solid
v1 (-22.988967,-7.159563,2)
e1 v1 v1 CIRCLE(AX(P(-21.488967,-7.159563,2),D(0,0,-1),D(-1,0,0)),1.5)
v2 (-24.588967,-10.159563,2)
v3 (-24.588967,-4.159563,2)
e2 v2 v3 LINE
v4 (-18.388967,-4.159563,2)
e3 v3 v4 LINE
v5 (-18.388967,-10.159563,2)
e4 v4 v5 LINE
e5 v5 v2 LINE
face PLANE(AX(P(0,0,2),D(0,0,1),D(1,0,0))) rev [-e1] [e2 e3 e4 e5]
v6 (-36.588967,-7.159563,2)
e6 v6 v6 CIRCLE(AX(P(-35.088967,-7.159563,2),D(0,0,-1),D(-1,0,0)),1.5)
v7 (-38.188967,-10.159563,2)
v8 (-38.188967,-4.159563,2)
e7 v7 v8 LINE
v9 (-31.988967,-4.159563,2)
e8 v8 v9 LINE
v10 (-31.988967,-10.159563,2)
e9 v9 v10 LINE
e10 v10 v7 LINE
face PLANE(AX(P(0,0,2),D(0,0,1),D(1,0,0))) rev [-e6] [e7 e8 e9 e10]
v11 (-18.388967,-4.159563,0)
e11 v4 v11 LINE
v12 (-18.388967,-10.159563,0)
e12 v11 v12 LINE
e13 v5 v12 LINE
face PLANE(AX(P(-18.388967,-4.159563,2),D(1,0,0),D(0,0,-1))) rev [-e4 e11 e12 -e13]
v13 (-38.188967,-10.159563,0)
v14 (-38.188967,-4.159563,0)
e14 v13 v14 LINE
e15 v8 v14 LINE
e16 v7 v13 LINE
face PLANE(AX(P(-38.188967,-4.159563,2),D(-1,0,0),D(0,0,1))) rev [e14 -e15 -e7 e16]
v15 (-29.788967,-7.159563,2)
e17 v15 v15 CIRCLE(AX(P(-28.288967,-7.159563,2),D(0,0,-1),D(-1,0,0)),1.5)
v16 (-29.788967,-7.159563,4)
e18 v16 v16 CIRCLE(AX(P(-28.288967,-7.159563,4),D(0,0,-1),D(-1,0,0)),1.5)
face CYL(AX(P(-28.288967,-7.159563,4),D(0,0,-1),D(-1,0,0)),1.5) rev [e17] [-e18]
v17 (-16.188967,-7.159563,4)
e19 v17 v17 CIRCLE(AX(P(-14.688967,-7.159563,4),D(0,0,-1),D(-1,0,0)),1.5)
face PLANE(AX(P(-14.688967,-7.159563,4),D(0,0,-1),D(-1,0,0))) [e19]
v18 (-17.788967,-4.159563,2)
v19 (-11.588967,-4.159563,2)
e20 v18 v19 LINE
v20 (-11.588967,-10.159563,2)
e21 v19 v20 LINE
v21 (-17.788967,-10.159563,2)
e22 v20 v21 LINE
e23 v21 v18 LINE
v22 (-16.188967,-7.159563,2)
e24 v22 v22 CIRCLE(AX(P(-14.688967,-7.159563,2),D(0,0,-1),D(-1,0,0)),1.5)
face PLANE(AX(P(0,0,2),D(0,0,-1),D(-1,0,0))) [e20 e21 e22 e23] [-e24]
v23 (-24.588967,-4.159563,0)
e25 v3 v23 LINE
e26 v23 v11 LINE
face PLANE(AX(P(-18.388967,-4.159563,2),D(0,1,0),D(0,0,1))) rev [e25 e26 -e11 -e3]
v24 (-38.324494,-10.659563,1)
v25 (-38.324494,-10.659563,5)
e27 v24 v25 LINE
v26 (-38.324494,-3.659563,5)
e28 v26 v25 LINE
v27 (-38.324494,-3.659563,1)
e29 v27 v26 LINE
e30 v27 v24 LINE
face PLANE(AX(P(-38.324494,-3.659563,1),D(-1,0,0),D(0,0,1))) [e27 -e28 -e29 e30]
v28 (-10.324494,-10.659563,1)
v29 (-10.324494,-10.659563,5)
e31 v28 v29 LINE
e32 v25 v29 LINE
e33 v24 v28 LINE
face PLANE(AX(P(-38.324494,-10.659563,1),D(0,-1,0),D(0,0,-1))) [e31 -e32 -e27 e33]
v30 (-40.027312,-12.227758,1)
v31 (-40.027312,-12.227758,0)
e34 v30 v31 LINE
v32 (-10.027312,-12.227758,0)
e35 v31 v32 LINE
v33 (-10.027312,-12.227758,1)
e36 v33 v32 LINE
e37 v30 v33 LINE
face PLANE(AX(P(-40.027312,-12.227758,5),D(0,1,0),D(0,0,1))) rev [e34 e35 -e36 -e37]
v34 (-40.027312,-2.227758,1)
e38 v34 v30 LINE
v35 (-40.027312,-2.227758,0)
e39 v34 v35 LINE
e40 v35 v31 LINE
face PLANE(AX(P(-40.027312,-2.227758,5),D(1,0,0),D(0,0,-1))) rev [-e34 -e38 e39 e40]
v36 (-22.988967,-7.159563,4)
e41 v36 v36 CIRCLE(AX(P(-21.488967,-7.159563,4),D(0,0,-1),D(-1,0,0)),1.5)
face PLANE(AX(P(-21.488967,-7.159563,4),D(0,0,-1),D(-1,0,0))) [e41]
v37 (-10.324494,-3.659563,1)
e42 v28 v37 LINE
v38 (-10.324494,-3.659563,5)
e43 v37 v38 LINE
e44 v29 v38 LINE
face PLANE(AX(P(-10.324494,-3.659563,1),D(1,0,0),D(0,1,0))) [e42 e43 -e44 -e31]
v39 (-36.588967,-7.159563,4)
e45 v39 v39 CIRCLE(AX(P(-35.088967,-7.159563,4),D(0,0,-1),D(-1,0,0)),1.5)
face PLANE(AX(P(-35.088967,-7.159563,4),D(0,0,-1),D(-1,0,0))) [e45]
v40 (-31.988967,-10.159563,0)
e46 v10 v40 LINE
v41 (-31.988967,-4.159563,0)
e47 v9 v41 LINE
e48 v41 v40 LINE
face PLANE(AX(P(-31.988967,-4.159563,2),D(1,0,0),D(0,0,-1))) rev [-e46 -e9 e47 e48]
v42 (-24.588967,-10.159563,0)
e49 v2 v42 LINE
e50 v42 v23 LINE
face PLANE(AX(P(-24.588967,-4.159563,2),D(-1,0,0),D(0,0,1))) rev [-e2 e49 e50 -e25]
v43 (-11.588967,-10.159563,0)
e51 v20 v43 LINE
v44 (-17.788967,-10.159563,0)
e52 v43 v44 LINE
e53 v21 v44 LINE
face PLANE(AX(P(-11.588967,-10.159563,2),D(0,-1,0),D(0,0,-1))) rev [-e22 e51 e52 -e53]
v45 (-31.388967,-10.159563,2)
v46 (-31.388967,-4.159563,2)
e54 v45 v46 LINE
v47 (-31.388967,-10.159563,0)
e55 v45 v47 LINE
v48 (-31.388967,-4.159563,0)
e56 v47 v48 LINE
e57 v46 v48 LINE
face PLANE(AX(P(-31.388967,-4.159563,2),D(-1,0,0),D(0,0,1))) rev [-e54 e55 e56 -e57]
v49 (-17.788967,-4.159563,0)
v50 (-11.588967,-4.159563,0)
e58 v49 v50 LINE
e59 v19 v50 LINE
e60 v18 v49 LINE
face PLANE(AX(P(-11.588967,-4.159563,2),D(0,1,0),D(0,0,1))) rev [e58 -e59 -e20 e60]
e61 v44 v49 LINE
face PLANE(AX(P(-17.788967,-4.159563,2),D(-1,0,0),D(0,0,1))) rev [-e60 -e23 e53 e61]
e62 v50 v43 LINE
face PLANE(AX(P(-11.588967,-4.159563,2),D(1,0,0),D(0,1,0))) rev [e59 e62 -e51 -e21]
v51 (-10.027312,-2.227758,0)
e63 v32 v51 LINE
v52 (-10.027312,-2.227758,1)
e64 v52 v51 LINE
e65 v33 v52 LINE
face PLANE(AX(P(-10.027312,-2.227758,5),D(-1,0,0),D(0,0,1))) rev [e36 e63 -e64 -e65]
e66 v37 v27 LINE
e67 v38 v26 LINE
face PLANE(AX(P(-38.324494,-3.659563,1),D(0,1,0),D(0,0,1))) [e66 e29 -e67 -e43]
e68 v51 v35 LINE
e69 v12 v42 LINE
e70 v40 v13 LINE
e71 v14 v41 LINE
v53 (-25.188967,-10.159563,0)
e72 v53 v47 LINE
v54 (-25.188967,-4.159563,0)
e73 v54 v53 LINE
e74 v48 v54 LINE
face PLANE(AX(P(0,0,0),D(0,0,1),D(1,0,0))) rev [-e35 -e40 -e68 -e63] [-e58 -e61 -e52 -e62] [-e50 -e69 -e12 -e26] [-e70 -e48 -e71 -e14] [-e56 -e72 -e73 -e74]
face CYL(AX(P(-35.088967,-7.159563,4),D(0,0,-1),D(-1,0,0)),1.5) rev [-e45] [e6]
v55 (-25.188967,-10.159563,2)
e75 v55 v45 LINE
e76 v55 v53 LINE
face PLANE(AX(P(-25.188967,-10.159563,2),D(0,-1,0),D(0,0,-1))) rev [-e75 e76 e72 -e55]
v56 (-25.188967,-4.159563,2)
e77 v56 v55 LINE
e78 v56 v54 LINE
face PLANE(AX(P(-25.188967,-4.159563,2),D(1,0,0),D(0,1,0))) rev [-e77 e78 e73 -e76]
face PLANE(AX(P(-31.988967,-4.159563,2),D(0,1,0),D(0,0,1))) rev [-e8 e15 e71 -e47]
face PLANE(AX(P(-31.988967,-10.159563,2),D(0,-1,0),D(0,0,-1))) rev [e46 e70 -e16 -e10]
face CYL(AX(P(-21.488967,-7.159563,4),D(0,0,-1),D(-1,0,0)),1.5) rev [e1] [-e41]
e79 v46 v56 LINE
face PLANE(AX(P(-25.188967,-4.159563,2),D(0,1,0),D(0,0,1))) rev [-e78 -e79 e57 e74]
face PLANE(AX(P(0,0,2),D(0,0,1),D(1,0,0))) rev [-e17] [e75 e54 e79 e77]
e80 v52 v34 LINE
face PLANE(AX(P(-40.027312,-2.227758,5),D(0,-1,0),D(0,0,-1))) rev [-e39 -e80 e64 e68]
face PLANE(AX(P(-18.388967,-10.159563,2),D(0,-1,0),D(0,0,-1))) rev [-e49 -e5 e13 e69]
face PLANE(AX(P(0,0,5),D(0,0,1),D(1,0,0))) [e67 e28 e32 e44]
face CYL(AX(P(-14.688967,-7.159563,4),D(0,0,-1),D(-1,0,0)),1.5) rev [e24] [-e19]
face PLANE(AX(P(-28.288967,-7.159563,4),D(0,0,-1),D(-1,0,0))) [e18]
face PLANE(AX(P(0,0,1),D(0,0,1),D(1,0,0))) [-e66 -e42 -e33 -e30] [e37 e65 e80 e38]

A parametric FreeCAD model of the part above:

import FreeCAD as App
import Part
import Sketcher
Q = App.Units.Quantity


def add_polygon(sketch, points):
    """Adds a closed chain of lines whose ends are joined by coincident constraints."""
    first, n = sketch.GeometryCount, len(points)
    for a, b in zip(points, points[1:] + points[:1]):
        sketch.addGeometry(Part.LineSegment(App.Vector(*a, 0), App.Vector(*b, 0)), False)
    for i in range(n):
        sketch.addConstraint(Sketcher.Constraint("Coincident", first + i, 2, first + (i + 1) % n, 1))

doc = App.newDocument("Part")
body = doc.addObject("PartDesign::Body", "Body")

sketch1 = body.newObject("Sketcher::SketchObject", "Sketch")
sketch1.AttachmentSupport = (doc.getObject("XY_Plane"), [""])
sketch1.MapMode = "FlatFace"
add_polygon(sketch1, [(-40, -2), (-40, -12), (-10, -12), (-10, -2)])
sketch1.addConstraint([
    Sketcher.Constraint("Vertical", 0),
    Sketcher.Constraint("Horizontal", 1),
    Sketcher.Constraint("Vertical", 2),
    Sketcher.Constraint("Horizontal", 3),
    Sketcher.Constraint("DistanceX", 1, 1, 1, 2, Q("30 mm")),
    Sketcher.Constraint("DistanceY", 0, 2, 0, 1, Q("10 mm")),
    Sketcher.Constraint("DistanceX", 0, 2, -1, 1, Q("40.027312 mm")),
    Sketcher.Constraint("DistanceY", 0, 2, -1, 1, Q("12.227758 mm")),
])
pad1 = body.newObject("PartDesign::Pad", "Pad")
pad1.Profile = sketch1
pad1.Length = 5

sketch2 = body.newObject("Sketcher::SketchObject", "Sketch001")
sketch2.AttachmentSupport = (doc.getObject("XY_Plane"), [""])
sketch2.MapMode = "FlatFace"
add_polygon(sketch2, [(-18, -4), (-18, -10), (-25, -10), (-25, -4)])
add_polygon(sketch2, [(-12, -4), (-12, -10), (-18, -10), (-18, -4)])
add_polygon(sketch2, [(-25, -4), (-25, -10), (-31, -10), (-31, -4)])
add_polygon(sketch2, [(-32, -4), (-32, -10), (-38, -10), (-38, -4)])
sketch2.addConstraint([
    Sketcher.Constraint("Vertical", 0),
    Sketcher.Constraint("Horizontal", 1),
    Sketcher.Constraint("Vertical", 2),
    Sketcher.Constraint("Horizontal", 3),
    Sketcher.Constraint("Vertical", 4),
    Sketcher.Constraint("Horizontal", 5),
    Sketcher.Constraint("Vertical", 6),
    Sketcher.Constraint("Horizontal", 7),
    Sketcher.Constraint("Vertical", 8),
    Sketcher.Constraint("Horizontal", 9),
    Sketcher.Constraint("Vertical", 10),
    Sketcher.Constraint("Horizontal", 11),
    Sketcher.Constraint("Vertical", 12),
    Sketcher.Constraint("Horizontal", 13),
    Sketcher.Constraint("Vertical", 14),
    Sketcher.Constraint("Horizontal", 15),
    Sketcher.Constraint("Horizontal", 1, 2, 4, 2),
    Sketcher.Constraint("Horizontal", 3, 2, 6, 2),
    Sketcher.Constraint("Horizontal", 5, 2, 8, 2),
    Sketcher.Constraint("Horizontal", 7, 2, 10, 2),
    Sketcher.Constraint("Horizontal", 9, 2, 12, 2),
    Sketcher.Constraint("Horizontal", 11, 2, 14, 2),
    Sketcher.Constraint("Equal", 3, 5),
    Sketcher.Constraint("Equal", 7, 9),
    Sketcher.Constraint("Equal", 11, 13),
    Sketcher.Constraint("DistanceY", 0, 2, 0, 1, Q("6 mm")),
    Sketcher.Constraint("DistanceX", 1, 2, 1, 1, Q("6.2 mm")),
    Sketcher.Constraint("DistanceX", 1, 2, 4, 2, Q("13 mm")),
    Sketcher.Constraint("DistanceX", 9, 2, 0, 2, Q("13 mm")),
    Sketcher.Constraint("DistanceX", 13, 2, 8, 2, Q("13 mm")),
    Sketcher.Constraint("DistanceX", 0, 2, -1, 1, Q("18.388967 mm")),
    Sketcher.Constraint("DistanceY", 0, 2, -1, 1, Q("10.159563 mm")),
])
pocket1 = body.newObject("PartDesign::Pocket", "Pocket")
pocket1.Profile = sketch2
pocket1.Length = 2
pocket1.Reversed = True

sketch3 = body.newObject("Sketcher::SketchObject", "Sketch002")
sketch3.AttachmentSupport = (doc.getObject("XY_Plane"), [""])
sketch3.MapMode = "FlatFace"
sketch3.AttachmentOffset = App.Placement(App.Vector(0, 0, 2), App.Rotation())
sketch3.addGeometry([
    Part.Circle(App.Vector(-14.7, -7.2, 0), App.Vector(0, 0, 1), 1.5),
    Part.Circle(App.Vector(-21.5, -7.2, 0), App.Vector(0, 0, 1), 1.5),
    Part.Circle(App.Vector(-28.3, -7.2, 0), App.Vector(0, 0, 1), 1.5),
    Part.Circle(App.Vector(-35.1, -7.2, 0), App.Vector(0, 0, 1), 1.5),
], False)
sketch3.addConstraint([
    Sketcher.Constraint("Equal", 0, 1),
    Sketcher.Constraint("Equal", 1, 2),
    Sketcher.Constraint("Equal", 2, 3),
    Sketcher.Constraint("Horizontal", 0, 3, 1, 3),
    Sketcher.Constraint("Horizontal", 1, 3, 2, 3),
    Sketcher.Constraint("Horizontal", 2, 3, 3, 3),
    Sketcher.Constraint("Diameter", 0, Q("3 mm")),
    Sketcher.Constraint("DistanceX", 1, 3, 0, 3, Q("6.8 mm")),
    Sketcher.Constraint("DistanceX", 2, 3, 1, 3, Q("6.8 mm")),
    Sketcher.Constraint("DistanceX", 3, 3, 2, 3, Q("6.8 mm")),
    Sketcher.Constraint("DistanceX", 0, 3, -1, 1, Q("14.688967 mm")),
    Sketcher.Constraint("DistanceY", 0, 3, -1, 1, Q("7.159563 mm")),
])
pocket2 = body.newObject("PartDesign::Pocket", "Pocket001")
pocket2.Profile = sketch3
pocket2.Length = 2
pocket2.Reversed = True

sketch4 = body.newObject("Sketcher::SketchObject", "Sketch003")
sketch4.AttachmentSupport = (doc.getObject("XY_Plane"), [""])
sketch4.MapMode = "FlatFace"
sketch4.AttachmentOffset = App.Placement(App.Vector(0, 0, 5), App.Rotation())
add_polygon(sketch4, [(-40, -2), (-40, -12), (-10, -12), (-10, -2)])
add_polygon(sketch4, [(-10, -11), (-38, -11), (-38, -4), (-10, -4)])
sketch4.addConstraint([
    Sketcher.Constraint("Vertical", 0),
    Sketcher.Constraint("Horizontal", 1),
    Sketcher.Constraint("Vertical", 2),
    Sketcher.Constraint("Horizontal", 3),
    Sketcher.Constraint("Horizontal", 4),
    Sketcher.Constraint("Vertical", 5),
    Sketcher.Constraint("Horizontal", 6),
    Sketcher.Constraint("Vertical", 7),
    Sketcher.Constraint("DistanceX", 1, 1, 1, 2, Q("30 mm")),
    Sketcher.Constraint("DistanceX", 4, 2, 4, 1, Q("28 mm")),
    Sketcher.Constraint("DistanceY", 0, 2, 0, 1, Q("10 mm")),
    Sketcher.Constraint("DistanceY", 5, 1, 5, 2, Q("7 mm")),
    Sketcher.Constraint("DistanceX", 0, 2, -1, 1, Q("40.027312 mm")),
    Sketcher.Constraint("DistanceY", 0, 2, -1, 1, Q("12.227758 mm")),
    Sketcher.Constraint("DistanceX", 4, 2, -1, 1, Q("38.324494 mm")),
    Sketcher.Constraint("DistanceY", 4, 2, -1, 1, Q("10.659563 mm")),
])
pocket3 = body.newObject("PartDesign::Pocket", "Pocket002")
pocket3.Profile = sketch4
pocket3.Length = 4

doc.recompute()
